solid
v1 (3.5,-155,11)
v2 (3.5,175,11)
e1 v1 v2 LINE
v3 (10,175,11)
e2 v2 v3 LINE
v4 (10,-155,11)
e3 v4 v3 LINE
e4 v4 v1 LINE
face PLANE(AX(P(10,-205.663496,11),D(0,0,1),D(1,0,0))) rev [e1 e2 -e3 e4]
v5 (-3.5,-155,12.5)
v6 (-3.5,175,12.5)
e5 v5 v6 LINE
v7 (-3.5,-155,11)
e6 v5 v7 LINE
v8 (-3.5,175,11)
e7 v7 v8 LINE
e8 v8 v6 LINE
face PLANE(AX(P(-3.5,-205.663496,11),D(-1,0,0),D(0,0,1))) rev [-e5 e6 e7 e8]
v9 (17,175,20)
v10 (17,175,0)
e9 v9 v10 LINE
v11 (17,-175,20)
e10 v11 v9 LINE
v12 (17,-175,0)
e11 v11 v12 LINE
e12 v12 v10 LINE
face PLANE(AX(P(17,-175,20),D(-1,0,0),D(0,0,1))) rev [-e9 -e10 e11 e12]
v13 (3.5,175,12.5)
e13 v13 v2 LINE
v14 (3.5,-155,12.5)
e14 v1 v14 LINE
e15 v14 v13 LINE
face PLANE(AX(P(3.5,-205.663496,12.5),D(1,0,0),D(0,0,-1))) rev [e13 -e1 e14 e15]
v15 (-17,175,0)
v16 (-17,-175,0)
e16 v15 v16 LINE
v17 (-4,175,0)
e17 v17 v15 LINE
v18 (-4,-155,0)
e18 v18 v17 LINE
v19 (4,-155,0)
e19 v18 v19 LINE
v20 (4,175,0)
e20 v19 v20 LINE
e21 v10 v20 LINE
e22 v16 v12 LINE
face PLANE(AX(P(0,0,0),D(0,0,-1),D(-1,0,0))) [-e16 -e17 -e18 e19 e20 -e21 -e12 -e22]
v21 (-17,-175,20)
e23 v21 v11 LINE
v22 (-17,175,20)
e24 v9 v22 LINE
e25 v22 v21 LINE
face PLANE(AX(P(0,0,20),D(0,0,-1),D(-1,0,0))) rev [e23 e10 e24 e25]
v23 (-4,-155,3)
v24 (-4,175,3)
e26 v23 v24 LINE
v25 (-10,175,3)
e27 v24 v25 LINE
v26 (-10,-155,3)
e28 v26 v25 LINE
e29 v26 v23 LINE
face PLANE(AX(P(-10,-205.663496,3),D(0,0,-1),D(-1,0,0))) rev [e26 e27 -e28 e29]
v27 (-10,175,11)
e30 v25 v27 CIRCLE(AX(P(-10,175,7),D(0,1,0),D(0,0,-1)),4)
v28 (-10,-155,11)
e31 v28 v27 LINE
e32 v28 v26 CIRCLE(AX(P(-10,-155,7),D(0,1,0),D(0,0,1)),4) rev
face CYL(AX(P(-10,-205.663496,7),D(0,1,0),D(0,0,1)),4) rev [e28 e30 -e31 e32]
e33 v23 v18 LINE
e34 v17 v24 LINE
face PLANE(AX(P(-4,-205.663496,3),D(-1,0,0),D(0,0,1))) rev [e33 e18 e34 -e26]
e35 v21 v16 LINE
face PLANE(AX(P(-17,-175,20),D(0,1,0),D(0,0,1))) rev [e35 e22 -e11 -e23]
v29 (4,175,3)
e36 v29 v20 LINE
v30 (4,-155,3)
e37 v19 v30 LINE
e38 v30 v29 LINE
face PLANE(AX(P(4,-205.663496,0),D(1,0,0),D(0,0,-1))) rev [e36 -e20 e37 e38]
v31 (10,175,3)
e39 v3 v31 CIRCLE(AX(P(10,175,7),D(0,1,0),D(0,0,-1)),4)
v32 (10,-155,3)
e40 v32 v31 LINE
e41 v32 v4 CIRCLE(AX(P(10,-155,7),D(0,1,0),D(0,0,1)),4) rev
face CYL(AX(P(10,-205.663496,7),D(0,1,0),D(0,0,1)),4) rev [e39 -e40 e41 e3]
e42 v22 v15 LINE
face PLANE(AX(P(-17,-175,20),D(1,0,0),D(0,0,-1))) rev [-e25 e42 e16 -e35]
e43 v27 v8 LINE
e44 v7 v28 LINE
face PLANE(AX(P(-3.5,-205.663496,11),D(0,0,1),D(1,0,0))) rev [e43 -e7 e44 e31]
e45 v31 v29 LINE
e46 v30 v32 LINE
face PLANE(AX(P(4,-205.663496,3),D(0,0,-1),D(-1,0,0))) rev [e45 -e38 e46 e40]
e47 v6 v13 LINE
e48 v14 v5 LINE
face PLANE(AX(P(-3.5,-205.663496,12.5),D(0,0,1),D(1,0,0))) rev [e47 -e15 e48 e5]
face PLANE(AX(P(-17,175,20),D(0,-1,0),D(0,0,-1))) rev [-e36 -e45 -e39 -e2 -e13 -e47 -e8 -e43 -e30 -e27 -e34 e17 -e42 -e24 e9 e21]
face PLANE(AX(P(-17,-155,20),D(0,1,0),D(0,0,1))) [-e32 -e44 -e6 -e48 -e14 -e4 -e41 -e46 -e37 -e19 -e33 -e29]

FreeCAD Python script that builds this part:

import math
import FreeCAD as App
import Part
import Sketcher

doc = App.newDocument("Part")
params = doc.addObject("Spreadsheet::Sheet", "Params")
for row, (alias, value) in enumerate([
    ("sketch1_width", "34 mm"),
    ("sketch1_height", "350 mm"),
    ("pad1_length", "20 mm"),
    ("sketch2_radius", "4 mm"),
    ("sketch2_width", "6 mm"),
    ("sketch2_width2", "7 mm"),
    ("sketch2_width3", "8 mm"),
    ("sketch2_height", "3 mm"),
    ("pocket1_length", "330 mm"),
], start=1):
    params.set(f"A{row}", alias)
    params.set(f"B{row}", "=" + value)
    params.setAlias(f"B{row}", alias)

body = doc.addObject("PartDesign::Body", "Body")

# Sketch on XY plane
sketch1 = body.newObject("Sketcher::SketchObject", "Sketch")
sketch1.AttachmentSupport = (doc.getObject("XY_Plane"), [""])
sketch1.MapMode = "FlatFace"
sketch1.addGeometry(Part.LineSegment(App.Vector(-17, 175, 0), App.Vector(-17, -175, 0)), False)
sketch1.addGeometry(Part.LineSegment(App.Vector(-17, -175, 0), App.Vector(17, -175, 0)), False)
sketch1.addGeometry(Part.LineSegment(App.Vector(17, -175, 0), App.Vector(17, 175, 0)), False)
sketch1.addGeometry(Part.LineSegment(App.Vector(17, 175, 0), App.Vector(-17, 175, 0)), False)
sketch1.addConstraint(Sketcher.Constraint("Coincident", 0, 2, 1, 1))
sketch1.addConstraint(Sketcher.Constraint("Coincident", 1, 2, 2, 1))
sketch1.addConstraint(Sketcher.Constraint("Coincident", 2, 2, 3, 1))
sketch1.addConstraint(Sketcher.Constraint("Coincident", 3, 2, 0, 1))
sketch1.addConstraint(Sketcher.Constraint("Vertical", 0))
sketch1.addConstraint(Sketcher.Constraint("Horizontal", 1))
sketch1.addConstraint(Sketcher.Constraint("Vertical", 2))
sketch1.addConstraint(Sketcher.Constraint("Horizontal", 3))
sketch1.addConstraint(Sketcher.Constraint("Symmetric", 0, 2, 2, 2, -1, 1))
sketch1.addConstraint(Sketcher.Constraint("DistanceX", 1, 1, 1, 2, 34.0))
sketch1.addConstraint(Sketcher.Constraint("DistanceY", 0, 2, 0, 1, 350.0))
sketch1.setExpression("Constraints[9]", "Params.sketch1_width")
sketch1.setExpression("Constraints[10]", "Params.sketch1_height")
pad1 = body.newObject("PartDesign::Pad", "Pad")
pad1.Profile = sketch1
pad1.setExpression("Length", "Params.pad1_length")

# Sketch on XZ plane
sketch2 = body.newObject("Sketcher::SketchObject", "Sketch001")
sketch2.AttachmentSupport = (doc.getObject("XZ_Plane"), [""])
sketch2.MapMode = "FlatFace"
sketch2.AttachmentOffset = App.Placement(App.Vector(0, 0, -175), App.Rotation())
sketch2.addGeometry(Part.LineSegment(App.Vector(-4, 3, 0), App.Vector(-10, 3, 0)), False)
sketch2.addGeometry(Part.ArcOfCircle(Part.Circle(App.Vector(-10, 7, 0), App.Vector(0, 0, 1), 4), math.radians(90), math.radians(270)), False)
sketch2.addGeometry(Part.LineSegment(App.Vector(-10, 11, 0), App.Vector(-3.5, 11, 0)), False)
sketch2.addGeometry(Part.LineSegment(App.Vector(-3.5, 11, 0), App.Vector(-3.5, 12.5, 0)), False)
sketch2.addGeometry(Part.LineSegment(App.Vector(-3.5, 12.5, 0), App.Vector(3.5, 12.5, 0)), False)
sketch2.addGeometry(Part.LineSegment(App.Vector(3.5, 12.5, 0), App.Vector(3.5, 11, 0)), False)
sketch2.addGeometry(Part.LineSegment(App.Vector(3.5, 11, 0), App.Vector(10, 11, 0)), False)
sketch2.addGeometry(Part.ArcOfCircle(Part.Circle(App.Vector(10, 7, 0), App.Vector(0, 0, 1), 4), math.radians(-90), math.radians(90)), False)
sketch2.addGeometry(Part.LineSegment(App.Vector(10, 3, 0), App.Vector(4, 3, 0)), False)
sketch2.addGeometry(Part.LineSegment(App.Vector(4, 3, 0), App.Vector(4, 0, 0)), False)
sketch2.addGeometry(Part.LineSegment(App.Vector(4, 0, 0), App.Vector(-4, 0, 0)), False)
sketch2.addGeometry(Part.LineSegment(App.Vector(-4, 0, 0), App.Vector(-4, 3, 0)), False)
sketch2.addConstraint(Sketcher.Constraint("Tangent", 0, 2, 1, 2))
sketch2.addConstraint(Sketcher.Constraint("Tangent", 1, 1, 2, 1))
sketch2.addConstraint(Sketcher.Constraint("Coincident", 2, 2, 3, 1))
sketch2.addConstraint(Sketcher.Constraint("Coincident", 3, 2, 4, 1))
sketch2.addConstraint(Sketcher.Constraint("Coincident", 4, 2, 5, 1))
sketch2.addConstraint(Sketcher.Constraint("Coincident", 5, 2, 6, 1))
sketch2.addConstraint(Sketcher.Constraint("Tangent", 6, 2, 7, 2))
sketch2.addConstraint(Sketcher.Constraint("Tangent", 7, 1, 8, 1))
sketch2.addConstraint(Sketcher.Constraint("Coincident", 8, 2, 9, 1))
sketch2.addConstraint(Sketcher.Constraint("Coincident", 9, 2, 10, 1))
sketch2.addConstraint(Sketcher.Constraint("Coincident", 10, 2, 11, 1))
sketch2.addConstraint(Sketcher.Constraint("Coincident", 11, 2, 0, 1))
sketch2.addConstraint(Sketcher.Constraint("Horizontal", 0))
sketch2.addConstraint(Sketcher.Constraint("Horizontal", 2))
sketch2.addConstraint(Sketcher.Constraint("Vertical", 3))
sketch2.addConstraint(Sketcher.Constraint("Horizontal", 4))
sketch2.addConstraint(Sketcher.Constraint("Vertical", 5))
sketch2.addConstraint(Sketcher.Constraint("Horizontal", 6))
sketch2.addConstraint(Sketcher.Constraint("Horizontal", 8))
sketch2.addConstraint(Sketcher.Constraint("Vertical", 9))
sketch2.addConstraint(Sketcher.Constraint("Horizontal", 10))
sketch2.addConstraint(Sketcher.Constraint("Vertical", 11))
sketch2.addConstraint(Sketcher.Constraint("Equal", 1, 7))
sketch2.addConstraint(Sketcher.Constraint("Symmetric", 9, 2, 10, 2, -1, 1))
sketch2.addConstraint(Sketcher.Constraint("Symmetric", 1, 3, 7, 3, -2))
sketch2.addConstraint(Sketcher.Constraint("Equal", 2, 6))
sketch2.addConstraint(Sketcher.Constraint("Radius", 1, 4.0))
sketch2.addConstraint(Sketcher.Constraint("DistanceX", 0, 2, 0, 1, 6.0))
sketch2.addConstraint(Sketcher.Constraint("DistanceX", 4, 1, 4, 2, 7.0))
sketch2.addConstraint(Sketcher.Constraint("DistanceX", 10, 2, 10, 1, 8.0))
sketch2.addConstraint(Sketcher.Constraint("DistanceY", 9, 2, 9, 1, 3.0))
sketch2.addConstraint(Sketcher.Constraint("DistanceY", 3, 1, 3, 2, 1.5))
sketch2.setExpression("Constraints[26]", "Params.sketch2_radius")
sketch2.setExpression("Constraints[27]", "Params.sketch2_width")
sketch2.setExpression("Constraints[28]", "Params.sketch2_width2")
sketch2.setExpression("Constraints[29]", "Params.sketch2_width3")
sketch2.setExpression("Constraints[30]", "Params.sketch2_height")
pocket1 = body.newObject("PartDesign::Pocket", "Pocket")
pocket1.Profile = sketch2
pocket1.setExpression("Length", "Params.pocket1_length")
pocket1.Reversed = True

doc.recompute()
